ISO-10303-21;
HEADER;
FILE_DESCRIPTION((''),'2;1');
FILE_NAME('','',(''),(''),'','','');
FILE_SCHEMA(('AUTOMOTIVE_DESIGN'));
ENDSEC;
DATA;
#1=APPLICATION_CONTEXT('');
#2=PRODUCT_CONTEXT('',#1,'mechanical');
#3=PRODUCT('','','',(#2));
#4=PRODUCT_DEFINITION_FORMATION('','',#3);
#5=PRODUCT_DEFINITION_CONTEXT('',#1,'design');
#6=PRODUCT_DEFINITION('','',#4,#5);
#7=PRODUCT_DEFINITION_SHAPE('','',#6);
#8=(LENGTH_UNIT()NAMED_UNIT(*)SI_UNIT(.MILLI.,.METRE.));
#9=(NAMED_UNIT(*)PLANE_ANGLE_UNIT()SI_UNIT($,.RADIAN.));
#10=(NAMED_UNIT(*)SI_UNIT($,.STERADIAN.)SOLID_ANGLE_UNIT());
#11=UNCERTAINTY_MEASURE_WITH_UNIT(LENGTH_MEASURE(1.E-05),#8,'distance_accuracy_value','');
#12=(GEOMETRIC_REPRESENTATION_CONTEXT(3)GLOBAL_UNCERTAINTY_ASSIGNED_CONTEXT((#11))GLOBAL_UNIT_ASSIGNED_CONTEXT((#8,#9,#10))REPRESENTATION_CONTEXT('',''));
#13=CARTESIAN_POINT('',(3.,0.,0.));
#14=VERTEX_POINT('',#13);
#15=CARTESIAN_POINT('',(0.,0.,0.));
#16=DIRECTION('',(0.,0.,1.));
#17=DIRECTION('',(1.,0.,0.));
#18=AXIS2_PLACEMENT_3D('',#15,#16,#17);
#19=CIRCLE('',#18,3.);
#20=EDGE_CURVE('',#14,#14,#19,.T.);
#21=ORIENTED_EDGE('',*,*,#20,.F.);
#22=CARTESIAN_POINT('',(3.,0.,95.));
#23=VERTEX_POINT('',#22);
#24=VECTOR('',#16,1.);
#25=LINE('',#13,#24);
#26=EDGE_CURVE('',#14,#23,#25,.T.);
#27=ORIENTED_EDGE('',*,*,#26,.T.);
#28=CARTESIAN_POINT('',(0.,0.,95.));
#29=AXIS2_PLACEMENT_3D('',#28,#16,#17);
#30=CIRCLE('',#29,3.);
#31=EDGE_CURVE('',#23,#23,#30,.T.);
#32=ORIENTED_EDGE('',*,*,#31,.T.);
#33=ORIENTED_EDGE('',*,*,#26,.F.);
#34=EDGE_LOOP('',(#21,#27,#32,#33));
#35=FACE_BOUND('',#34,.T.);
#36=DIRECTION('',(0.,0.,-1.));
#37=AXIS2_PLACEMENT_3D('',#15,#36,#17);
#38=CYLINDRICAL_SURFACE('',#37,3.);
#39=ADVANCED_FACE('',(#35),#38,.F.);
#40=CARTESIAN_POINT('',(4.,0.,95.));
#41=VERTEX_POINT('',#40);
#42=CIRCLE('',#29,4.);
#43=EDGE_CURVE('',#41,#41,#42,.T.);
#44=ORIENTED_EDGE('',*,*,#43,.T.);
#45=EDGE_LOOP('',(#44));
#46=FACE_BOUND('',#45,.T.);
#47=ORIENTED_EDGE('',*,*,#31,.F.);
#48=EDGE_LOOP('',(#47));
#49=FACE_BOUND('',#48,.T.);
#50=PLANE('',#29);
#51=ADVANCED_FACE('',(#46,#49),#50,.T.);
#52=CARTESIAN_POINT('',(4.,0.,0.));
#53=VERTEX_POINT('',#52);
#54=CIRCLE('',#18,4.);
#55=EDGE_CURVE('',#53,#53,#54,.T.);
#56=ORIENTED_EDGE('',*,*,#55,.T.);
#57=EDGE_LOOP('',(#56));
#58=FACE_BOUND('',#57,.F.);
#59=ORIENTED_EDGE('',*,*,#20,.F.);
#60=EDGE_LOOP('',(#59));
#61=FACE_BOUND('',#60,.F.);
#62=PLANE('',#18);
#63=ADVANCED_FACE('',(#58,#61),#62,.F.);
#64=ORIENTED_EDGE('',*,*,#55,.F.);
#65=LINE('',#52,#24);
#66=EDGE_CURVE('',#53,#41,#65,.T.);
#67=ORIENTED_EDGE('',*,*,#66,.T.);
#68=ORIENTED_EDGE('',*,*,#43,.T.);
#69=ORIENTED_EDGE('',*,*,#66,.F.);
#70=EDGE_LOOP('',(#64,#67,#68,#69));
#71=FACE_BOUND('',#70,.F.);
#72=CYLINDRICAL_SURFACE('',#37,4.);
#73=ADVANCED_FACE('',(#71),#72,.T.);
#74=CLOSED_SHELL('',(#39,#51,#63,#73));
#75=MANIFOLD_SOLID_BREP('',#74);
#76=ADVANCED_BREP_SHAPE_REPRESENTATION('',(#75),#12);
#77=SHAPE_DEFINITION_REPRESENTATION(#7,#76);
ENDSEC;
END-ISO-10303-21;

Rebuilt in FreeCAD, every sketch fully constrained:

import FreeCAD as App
import Part
import Sketcher
from FreeCAD import Vector
Q = App.Units.Quantity

doc = App.newDocument("Part")
body = doc.addObject("PartDesign::Body", "Body")

# Sketch on XY plane
sketch1 = doc.addObject("Sketcher::SketchObject", "Sketch")
body.addObject(sketch1)
sketch1.AttachmentSupport = (doc.XY_Plane, [""])
sketch1.MapMode = "FlatFace"
sketch1.addGeometry([
    Part.Circle(Vector(0, 0, 0), Vector(0, 0, 1), 4),
    Part.Circle(Vector(0, 0, 0), Vector(0, 0, 1), 3),
], False)
sketch1.addConstraint([
    Sketcher.Constraint("Coincident", 0, 3, -1, 1),
    Sketcher.Constraint("Coincident", 1, 3, -1, 1),
    Sketcher.Constraint("Diameter", 0, Q("8 mm")),
    Sketcher.Constraint("Diameter", 1, Q("6 mm")),
])
pad1 = doc.addObject("PartDesign::Pad", "Pad")
body.addObject(pad1)
pad1.Profile = sketch1
pad1.Length = 95

doc.recompute()
